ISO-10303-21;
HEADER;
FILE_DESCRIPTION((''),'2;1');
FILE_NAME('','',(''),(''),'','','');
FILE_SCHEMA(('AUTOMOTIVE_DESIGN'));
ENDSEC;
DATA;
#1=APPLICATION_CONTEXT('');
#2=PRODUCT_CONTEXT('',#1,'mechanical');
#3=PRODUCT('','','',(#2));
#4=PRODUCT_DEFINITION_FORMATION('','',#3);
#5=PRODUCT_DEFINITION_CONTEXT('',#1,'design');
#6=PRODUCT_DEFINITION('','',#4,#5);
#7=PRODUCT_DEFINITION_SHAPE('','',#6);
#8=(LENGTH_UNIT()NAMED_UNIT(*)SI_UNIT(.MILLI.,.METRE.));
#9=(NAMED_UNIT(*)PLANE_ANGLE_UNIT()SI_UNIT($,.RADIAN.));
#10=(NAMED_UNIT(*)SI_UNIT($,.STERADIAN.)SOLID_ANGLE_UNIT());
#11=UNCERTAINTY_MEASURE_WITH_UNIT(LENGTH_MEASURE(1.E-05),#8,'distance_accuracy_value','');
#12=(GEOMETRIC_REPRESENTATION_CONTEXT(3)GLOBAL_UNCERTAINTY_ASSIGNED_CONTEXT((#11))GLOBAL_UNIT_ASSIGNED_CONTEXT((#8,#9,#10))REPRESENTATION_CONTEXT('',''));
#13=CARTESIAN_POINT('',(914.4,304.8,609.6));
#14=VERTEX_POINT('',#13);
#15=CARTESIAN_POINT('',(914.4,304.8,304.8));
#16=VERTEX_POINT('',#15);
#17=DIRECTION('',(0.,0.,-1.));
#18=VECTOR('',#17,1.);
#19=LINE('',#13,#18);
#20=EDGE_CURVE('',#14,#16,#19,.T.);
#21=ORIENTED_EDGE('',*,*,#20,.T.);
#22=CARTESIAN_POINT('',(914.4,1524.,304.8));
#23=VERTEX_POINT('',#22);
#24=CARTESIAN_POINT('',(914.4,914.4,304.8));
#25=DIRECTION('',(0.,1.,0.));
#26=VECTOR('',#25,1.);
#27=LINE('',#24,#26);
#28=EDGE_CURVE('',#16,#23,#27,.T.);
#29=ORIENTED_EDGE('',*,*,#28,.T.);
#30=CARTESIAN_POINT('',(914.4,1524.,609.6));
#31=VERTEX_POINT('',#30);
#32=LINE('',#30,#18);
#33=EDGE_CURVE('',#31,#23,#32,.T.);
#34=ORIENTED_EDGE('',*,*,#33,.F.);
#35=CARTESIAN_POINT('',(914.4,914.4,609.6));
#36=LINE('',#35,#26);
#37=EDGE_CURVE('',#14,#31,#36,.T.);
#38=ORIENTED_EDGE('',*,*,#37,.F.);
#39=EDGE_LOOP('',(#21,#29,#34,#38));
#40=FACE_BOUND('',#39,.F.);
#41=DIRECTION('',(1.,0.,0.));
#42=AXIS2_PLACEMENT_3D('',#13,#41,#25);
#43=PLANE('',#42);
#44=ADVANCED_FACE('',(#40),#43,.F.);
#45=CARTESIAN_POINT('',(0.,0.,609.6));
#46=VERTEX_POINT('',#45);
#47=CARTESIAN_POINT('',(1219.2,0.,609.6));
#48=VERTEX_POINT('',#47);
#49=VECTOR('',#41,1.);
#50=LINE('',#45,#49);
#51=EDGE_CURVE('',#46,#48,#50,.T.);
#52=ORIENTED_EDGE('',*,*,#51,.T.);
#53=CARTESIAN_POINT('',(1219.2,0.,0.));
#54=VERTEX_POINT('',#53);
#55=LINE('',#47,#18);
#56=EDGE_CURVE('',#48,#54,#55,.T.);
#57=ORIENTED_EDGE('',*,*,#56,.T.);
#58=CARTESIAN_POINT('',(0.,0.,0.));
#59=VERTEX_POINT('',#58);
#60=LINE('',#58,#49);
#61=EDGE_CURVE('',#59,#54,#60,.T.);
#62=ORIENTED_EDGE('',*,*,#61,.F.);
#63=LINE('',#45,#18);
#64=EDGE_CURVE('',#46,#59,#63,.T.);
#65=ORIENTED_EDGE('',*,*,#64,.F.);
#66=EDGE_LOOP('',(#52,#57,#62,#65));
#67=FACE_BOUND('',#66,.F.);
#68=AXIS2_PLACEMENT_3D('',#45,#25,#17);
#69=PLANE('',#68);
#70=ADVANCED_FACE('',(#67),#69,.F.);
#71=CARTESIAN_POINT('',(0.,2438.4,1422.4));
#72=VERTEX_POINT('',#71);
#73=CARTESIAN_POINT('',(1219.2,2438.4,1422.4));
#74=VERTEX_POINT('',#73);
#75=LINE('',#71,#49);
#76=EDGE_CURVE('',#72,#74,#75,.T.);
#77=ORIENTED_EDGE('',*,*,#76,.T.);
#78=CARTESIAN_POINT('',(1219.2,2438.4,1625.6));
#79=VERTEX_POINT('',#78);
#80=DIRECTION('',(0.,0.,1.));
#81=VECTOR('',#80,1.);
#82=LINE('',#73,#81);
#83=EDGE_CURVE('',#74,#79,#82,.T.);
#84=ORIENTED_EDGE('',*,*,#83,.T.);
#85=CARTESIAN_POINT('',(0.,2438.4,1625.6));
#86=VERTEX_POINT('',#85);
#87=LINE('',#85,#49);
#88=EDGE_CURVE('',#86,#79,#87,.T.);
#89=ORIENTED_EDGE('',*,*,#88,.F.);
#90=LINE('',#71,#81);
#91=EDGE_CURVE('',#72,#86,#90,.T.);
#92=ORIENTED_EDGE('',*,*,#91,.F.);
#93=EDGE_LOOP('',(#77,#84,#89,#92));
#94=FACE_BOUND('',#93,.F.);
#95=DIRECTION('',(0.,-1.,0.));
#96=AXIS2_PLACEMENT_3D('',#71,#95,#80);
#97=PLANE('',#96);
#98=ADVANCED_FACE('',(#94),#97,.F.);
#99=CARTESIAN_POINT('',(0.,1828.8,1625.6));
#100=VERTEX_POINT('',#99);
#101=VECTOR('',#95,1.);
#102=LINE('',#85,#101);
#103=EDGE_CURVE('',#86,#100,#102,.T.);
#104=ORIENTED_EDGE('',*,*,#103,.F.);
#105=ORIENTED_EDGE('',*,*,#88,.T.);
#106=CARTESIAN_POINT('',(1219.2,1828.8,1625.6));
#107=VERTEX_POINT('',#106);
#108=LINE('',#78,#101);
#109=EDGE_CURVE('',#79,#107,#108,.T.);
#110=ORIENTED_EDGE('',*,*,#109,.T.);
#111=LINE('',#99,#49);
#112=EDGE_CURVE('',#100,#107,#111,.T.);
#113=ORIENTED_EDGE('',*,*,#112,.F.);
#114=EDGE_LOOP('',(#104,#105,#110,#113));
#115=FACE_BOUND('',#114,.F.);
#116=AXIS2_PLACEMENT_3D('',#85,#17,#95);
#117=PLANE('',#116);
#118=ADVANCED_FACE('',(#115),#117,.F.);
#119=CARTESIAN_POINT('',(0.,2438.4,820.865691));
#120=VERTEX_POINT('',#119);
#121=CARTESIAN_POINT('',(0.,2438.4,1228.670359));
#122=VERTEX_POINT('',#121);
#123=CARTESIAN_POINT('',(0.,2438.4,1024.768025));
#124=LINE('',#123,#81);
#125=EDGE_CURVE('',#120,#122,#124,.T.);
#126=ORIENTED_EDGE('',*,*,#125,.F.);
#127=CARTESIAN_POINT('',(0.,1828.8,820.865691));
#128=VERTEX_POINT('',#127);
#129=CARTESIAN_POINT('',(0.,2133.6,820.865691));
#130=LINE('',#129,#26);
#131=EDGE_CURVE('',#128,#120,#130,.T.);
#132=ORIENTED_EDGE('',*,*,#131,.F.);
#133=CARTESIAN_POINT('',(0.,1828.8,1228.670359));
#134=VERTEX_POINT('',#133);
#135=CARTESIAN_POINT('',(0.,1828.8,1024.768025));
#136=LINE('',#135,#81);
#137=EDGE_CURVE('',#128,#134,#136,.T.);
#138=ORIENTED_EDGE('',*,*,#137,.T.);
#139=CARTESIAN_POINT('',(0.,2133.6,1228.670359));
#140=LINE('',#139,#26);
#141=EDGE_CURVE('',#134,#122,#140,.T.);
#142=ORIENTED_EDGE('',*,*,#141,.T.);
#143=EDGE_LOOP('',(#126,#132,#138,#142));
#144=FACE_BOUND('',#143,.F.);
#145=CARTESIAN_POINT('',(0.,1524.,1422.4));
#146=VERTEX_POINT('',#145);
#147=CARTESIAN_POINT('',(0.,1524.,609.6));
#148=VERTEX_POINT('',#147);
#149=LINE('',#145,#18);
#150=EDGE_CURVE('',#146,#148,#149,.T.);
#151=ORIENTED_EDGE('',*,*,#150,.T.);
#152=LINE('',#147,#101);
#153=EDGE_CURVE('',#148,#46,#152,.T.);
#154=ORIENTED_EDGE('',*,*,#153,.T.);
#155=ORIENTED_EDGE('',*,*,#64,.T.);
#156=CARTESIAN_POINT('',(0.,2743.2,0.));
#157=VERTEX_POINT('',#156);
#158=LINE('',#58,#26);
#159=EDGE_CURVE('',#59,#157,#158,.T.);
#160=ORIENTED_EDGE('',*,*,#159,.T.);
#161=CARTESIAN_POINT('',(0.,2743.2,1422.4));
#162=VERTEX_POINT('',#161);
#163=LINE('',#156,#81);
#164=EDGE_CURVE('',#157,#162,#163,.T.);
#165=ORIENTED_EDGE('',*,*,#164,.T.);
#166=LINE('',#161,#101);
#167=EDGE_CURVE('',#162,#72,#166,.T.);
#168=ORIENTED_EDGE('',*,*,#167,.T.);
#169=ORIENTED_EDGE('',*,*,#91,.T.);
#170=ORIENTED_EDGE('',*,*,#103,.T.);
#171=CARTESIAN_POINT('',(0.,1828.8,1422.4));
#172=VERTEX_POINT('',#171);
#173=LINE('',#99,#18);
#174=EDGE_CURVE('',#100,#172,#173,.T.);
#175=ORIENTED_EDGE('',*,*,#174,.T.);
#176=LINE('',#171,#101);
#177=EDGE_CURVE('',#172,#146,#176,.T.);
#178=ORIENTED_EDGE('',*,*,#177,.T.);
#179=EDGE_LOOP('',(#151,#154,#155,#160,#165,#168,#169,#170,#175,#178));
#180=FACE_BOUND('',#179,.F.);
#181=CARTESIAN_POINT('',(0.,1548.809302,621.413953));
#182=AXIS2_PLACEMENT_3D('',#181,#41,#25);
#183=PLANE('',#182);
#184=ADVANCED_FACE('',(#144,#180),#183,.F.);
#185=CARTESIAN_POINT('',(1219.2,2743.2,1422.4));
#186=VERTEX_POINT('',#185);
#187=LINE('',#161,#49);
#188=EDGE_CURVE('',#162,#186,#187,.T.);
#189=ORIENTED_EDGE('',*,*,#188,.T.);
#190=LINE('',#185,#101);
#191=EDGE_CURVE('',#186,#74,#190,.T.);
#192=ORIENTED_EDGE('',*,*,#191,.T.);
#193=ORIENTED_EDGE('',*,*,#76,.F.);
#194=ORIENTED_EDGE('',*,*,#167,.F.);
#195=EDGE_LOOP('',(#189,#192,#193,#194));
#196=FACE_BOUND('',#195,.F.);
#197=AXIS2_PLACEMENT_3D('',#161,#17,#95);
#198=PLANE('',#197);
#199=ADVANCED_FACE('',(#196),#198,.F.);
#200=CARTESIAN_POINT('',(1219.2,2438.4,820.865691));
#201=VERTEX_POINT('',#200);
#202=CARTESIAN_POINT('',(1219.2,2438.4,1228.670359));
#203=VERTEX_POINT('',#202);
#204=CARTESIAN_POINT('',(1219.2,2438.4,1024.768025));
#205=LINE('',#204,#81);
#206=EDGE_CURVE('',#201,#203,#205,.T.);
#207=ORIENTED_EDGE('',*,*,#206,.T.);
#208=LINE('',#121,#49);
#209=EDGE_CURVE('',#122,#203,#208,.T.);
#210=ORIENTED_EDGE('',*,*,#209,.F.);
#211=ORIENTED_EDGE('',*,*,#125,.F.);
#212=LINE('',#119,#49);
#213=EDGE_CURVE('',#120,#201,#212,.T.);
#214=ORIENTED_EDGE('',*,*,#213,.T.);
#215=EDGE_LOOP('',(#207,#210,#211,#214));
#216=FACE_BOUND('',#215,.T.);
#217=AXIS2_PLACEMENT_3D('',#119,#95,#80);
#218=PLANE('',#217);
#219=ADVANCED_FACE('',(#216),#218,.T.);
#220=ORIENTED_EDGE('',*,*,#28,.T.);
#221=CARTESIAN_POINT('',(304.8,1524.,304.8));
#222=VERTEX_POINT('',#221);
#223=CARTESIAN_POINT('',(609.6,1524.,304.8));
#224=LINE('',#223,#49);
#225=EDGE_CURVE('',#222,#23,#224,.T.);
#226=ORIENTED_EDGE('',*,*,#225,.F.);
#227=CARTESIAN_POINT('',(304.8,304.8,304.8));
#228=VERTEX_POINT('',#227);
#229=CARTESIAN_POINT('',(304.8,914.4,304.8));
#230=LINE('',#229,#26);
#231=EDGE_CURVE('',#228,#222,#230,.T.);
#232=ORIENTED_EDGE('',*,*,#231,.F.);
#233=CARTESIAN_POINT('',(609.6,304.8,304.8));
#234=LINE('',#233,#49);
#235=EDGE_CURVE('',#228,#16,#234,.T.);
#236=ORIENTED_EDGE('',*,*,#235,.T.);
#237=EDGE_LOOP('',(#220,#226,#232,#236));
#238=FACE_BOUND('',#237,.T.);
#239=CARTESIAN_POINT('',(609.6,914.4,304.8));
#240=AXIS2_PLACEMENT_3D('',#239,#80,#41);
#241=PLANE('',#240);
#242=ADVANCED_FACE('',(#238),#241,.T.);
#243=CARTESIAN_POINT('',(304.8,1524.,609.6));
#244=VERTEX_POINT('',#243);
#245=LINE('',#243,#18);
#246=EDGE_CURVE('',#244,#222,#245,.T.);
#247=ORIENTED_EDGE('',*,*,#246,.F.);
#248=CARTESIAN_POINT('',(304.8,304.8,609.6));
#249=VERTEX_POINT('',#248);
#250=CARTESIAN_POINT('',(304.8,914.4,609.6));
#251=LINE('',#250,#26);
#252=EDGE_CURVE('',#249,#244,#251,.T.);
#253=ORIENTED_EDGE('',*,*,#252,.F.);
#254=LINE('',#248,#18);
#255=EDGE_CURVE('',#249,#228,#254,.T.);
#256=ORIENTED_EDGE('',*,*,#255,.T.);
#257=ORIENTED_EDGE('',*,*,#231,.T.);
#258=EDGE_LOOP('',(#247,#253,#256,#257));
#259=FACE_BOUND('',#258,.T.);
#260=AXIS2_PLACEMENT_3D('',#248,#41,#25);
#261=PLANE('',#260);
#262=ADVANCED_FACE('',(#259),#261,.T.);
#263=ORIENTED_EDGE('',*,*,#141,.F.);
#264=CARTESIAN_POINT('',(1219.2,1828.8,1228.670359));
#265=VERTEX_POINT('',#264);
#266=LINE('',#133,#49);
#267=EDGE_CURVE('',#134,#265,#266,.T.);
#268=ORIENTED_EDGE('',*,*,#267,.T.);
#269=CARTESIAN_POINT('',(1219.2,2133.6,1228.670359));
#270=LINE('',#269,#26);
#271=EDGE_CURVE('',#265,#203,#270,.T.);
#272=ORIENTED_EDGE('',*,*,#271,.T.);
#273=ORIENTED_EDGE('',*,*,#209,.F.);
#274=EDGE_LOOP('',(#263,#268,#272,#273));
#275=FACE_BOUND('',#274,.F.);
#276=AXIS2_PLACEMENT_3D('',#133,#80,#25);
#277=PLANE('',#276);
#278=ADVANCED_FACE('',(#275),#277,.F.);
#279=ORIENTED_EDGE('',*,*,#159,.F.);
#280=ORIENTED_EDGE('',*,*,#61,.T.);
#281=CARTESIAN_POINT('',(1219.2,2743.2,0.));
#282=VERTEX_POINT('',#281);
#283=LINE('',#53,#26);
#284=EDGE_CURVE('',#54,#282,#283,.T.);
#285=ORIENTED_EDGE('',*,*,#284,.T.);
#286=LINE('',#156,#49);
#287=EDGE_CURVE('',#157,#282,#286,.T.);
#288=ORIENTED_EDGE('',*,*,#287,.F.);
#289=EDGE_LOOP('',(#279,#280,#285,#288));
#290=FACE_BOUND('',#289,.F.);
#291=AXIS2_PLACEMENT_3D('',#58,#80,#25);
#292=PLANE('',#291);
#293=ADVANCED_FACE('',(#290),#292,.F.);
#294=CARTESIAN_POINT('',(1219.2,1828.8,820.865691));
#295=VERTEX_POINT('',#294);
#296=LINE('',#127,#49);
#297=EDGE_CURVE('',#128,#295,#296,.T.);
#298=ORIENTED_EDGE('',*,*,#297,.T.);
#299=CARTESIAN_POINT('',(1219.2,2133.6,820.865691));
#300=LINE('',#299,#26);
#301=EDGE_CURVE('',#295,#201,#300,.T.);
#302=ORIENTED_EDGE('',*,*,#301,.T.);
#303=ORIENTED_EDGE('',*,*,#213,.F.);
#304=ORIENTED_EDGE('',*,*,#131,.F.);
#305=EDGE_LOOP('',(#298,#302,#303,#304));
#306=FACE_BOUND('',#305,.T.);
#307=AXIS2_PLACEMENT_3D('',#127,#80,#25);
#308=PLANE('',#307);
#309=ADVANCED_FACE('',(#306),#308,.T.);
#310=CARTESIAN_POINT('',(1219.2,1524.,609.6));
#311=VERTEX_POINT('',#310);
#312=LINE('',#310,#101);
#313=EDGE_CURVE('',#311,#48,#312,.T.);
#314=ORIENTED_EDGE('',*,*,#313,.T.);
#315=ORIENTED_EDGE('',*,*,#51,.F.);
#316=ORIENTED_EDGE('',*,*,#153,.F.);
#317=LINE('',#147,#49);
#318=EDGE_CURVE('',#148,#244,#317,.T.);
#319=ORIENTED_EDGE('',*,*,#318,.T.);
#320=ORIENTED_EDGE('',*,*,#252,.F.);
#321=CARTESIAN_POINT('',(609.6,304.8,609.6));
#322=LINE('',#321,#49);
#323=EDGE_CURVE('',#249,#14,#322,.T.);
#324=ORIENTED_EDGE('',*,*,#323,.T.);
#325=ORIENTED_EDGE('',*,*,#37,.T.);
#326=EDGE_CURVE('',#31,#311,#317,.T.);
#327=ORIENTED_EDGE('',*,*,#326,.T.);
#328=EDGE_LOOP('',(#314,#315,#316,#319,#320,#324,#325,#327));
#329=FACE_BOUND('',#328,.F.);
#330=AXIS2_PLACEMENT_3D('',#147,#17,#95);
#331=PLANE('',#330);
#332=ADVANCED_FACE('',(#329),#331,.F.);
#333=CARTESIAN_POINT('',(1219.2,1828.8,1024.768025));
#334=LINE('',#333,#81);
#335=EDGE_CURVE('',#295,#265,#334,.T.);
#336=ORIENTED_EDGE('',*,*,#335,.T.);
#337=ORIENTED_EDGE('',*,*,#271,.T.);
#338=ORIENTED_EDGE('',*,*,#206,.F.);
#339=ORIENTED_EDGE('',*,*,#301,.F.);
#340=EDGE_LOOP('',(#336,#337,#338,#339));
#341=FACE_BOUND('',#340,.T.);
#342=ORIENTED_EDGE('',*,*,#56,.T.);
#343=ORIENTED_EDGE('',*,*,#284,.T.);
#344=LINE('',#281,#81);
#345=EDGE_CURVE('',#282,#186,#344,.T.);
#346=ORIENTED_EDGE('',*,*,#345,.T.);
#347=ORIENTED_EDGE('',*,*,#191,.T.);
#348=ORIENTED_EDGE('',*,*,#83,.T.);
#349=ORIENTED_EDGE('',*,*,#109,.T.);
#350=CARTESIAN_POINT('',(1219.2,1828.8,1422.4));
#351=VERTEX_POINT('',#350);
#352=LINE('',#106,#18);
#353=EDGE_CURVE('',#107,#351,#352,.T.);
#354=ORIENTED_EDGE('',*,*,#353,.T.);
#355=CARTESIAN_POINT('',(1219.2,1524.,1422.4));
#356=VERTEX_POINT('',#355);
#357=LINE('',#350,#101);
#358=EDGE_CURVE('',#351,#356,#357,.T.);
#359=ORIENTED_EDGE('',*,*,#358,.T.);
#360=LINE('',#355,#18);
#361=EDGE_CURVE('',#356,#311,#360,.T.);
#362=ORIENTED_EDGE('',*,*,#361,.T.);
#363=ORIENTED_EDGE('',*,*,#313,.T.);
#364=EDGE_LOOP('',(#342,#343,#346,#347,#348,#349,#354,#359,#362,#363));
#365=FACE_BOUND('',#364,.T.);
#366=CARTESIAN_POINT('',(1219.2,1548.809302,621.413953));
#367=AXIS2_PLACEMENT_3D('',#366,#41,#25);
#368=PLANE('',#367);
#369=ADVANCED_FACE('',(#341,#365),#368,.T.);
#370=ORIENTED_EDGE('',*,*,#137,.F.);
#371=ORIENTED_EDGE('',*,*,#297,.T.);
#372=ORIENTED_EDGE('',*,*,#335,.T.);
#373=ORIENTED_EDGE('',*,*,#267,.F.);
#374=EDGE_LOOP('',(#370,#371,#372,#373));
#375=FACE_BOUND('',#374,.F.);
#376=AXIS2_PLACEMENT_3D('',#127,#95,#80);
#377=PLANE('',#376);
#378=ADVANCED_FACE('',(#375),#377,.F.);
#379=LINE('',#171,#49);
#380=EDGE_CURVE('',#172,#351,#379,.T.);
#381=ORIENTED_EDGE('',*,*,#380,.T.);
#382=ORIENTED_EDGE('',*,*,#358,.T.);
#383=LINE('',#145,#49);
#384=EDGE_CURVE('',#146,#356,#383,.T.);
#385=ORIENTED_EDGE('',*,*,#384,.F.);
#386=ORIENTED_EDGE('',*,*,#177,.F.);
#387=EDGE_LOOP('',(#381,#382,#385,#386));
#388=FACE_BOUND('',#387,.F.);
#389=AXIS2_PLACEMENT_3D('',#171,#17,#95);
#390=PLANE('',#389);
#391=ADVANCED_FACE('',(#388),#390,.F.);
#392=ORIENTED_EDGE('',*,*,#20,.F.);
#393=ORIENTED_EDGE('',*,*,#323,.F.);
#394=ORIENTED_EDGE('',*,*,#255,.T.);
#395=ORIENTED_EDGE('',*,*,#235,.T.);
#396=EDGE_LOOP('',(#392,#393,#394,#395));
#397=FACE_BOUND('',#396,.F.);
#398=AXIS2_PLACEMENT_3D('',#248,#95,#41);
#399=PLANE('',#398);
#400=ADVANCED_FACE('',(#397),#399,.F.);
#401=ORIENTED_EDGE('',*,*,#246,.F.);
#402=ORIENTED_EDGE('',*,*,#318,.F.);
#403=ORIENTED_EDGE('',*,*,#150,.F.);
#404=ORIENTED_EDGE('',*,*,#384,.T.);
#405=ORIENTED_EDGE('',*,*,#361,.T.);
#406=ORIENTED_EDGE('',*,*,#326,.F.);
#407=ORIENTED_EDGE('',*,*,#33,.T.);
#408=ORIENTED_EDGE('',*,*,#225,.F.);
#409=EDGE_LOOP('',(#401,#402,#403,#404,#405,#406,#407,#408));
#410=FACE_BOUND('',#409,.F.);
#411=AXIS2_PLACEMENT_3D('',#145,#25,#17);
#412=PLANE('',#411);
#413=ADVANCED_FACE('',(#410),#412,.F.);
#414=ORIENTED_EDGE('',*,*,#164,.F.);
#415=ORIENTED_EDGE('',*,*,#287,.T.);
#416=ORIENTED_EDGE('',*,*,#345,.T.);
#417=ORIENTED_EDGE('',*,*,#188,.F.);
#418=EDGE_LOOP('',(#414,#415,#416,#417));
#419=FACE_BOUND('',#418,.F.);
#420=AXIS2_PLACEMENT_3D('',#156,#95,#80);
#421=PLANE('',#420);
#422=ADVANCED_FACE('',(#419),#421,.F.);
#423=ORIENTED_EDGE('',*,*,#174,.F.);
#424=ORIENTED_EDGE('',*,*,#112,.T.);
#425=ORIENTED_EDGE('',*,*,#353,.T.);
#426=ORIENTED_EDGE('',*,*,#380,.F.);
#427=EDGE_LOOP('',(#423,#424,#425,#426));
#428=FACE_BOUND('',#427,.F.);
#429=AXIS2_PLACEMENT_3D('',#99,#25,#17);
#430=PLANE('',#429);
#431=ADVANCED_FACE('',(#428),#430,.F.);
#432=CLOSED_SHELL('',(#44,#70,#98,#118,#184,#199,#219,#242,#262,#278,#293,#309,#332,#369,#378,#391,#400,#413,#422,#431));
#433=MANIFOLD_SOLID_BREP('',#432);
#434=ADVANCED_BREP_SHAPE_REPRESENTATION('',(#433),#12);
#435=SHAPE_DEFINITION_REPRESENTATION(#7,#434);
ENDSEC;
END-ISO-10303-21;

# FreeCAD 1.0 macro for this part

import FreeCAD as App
import Part
import Sketcher
from FreeCAD import Vector
Q = App.Units.Quantity

doc = App.newDocument("Part")
body = doc.addObject("PartDesign::Body", "Body")

# Sketch on YZ plane
sketch1 = body.newObject("Sketcher::SketchObject", "Sketch")
sketch1.AttachmentSupport = (doc.getObject("YZ_Plane"), [""])
sketch1.MapMode = "FlatFace"
sketch1.addGeometry([
    Part.LineSegment(Vector(0, 609.6, 0), Vector(0, 0, 0)),  # 0
    Part.LineSegment(Vector(0, 0, 0), Vector(2743.2, 0, 0)),  # 1
    Part.LineSegment(Vector(2743.2, 0, 0), Vector(2743.2, 1422.4, 0)),  # 2
    Part.LineSegment(Vector(2743.2, 1422.4, 0), Vector(2438.4, 1422.4, 0)),  # 3
    Part.LineSegment(Vector(2438.4, 1422.4, 0), Vector(2438.4, 1625.6, 0)),  # 4
    Part.LineSegment(Vector(2438.4, 1625.6, 0), Vector(1828.8, 1625.6, 0)),  # 5
    Part.LineSegment(Vector(1828.8, 1625.6, 0), Vector(1828.8, 1422.4, 0)),  # 6
    Part.LineSegment(Vector(1828.8, 1422.4, 0), Vector(1524, 1422.4, 0)),  # 7
    Part.LineSegment(Vector(1524, 1422.4, 0), Vector(1524, 609.6, 0)),  # 8
    Part.LineSegment(Vector(1524, 609.6, 0), Vector(0, 609.6, 0)),  # 9
    Part.LineSegment(Vector(2438.4, 820.865691, 0), Vector(1828.8, 820.865691, 0)),  # 10
    Part.LineSegment(Vector(1828.8, 820.865691, 0), Vector(1828.8, 1228.670359, 0)),  # 11
    Part.LineSegment(Vector(1828.8, 1228.670359, 0), Vector(2438.4, 1228.670359, 0)),  # 12
    Part.LineSegment(Vector(2438.4, 1228.670359, 0), Vector(2438.4, 820.865691, 0)),  # 13
], False)
sketch1.addConstraint([
    Sketcher.Constraint("Coincident", 0, 2, 1, 1),
    Sketcher.Constraint("Coincident", 1, 2, 2, 1),
    Sketcher.Constraint("Coincident", 2, 2, 3, 1),
    Sketcher.Constraint("Coincident", 3, 2, 4, 1),
    Sketcher.Constraint("Coincident", 4, 2, 5, 1),
    Sketcher.Constraint("Coincident", 5, 2, 6, 1),
    Sketcher.Constraint("Coincident", 6, 2, 7, 1),
    Sketcher.Constraint("Coincident", 7, 2, 8, 1),
    Sketcher.Constraint("Coincident", 8, 2, 9, 1),
    Sketcher.Constraint("Coincident", 9, 2, 0, 1),
    Sketcher.Constraint("Coincident", 10, 2, 11, 1),
    Sketcher.Constraint("Coincident", 11, 2, 12, 1),
    Sketcher.Constraint("Coincident", 12, 2, 13, 1),
    Sketcher.Constraint("Coincident", 13, 2, 10, 1),
    Sketcher.Constraint("Vertical", 0),
    Sketcher.Constraint("Horizontal", 1),
    Sketcher.Constraint("Vertical", 2),
    Sketcher.Constraint("Horizontal", 3),
    Sketcher.Constraint("Vertical", 4),
    Sketcher.Constraint("Horizontal", 5),
    Sketcher.Constraint("Vertical", 6),
    Sketcher.Constraint("Horizontal", 7),
    Sketcher.Constraint("Vertical", 8),
    Sketcher.Constraint("Horizontal", 9),
    Sketcher.Constraint("Horizontal", 10),
    Sketcher.Constraint("Vertical", 11),
    Sketcher.Constraint("Horizontal", 12),
    Sketcher.Constraint("Vertical", 13),
    Sketcher.Constraint("Coincident", 0, 2, -1, 1),
    Sketcher.Constraint("Horizontal", 3, 2, 6, 2),
    Sketcher.Constraint("Vertical", 6, 2, 10, 2),
    Sketcher.Constraint("Vertical", 4, 2, 12, 2),
    Sketcher.Constraint("Equal", 3, 7),
    Sketcher.Constraint("Equal", 12, 0),
    Sketcher.Constraint("DistanceX", 1, 1, 1, 2, Q("108 in")),
    Sketcher.Constraint("DistanceX", 3, 2, 3, 1, Q("12 in")),
    Sketcher.Constraint("DistanceX", 5, 2, 5, 1, Q("24 in")),
    Sketcher.Constraint("DistanceY", 2, 1, 2, 2, Q("56 in")),
    Sketcher.Constraint("DistanceY", 4, 1, 4, 2, Q("8 in")),
    Sketcher.Constraint("DistanceY", 11, 1, 11, 2, 407.804668),
    Sketcher.Constraint("DistanceY", -1, 1, 10, 2, 820.865691),
])
pad1 = body.newObject("PartDesign::Pad", "Pad")
pad1.Profile = sketch1
pad1.Length = Q("48 in")

# Sketch on XY plane
sketch2 = body.newObject("Sketcher::SketchObject", "Sketch001")
sketch2.AttachmentSupport = (doc.getObject("XY_Plane"), [""])
sketch2.MapMode = "FlatFace"
sketch2.AttachmentOffset = App.Placement(Vector(0, 0, 24 * 25.4), App.Rotation())
sketch2.addGeometry([
    Part.LineSegment(Vector(304.8, 1524, 0), Vector(304.8, 304.8, 0)),
    Part.LineSegment(Vector(304.8, 304.8, 0), Vector(914.4, 304.8, 0)),
    Part.LineSegment(Vector(914.4, 304.8, 0), Vector(914.4, 1524, 0)),
    Part.LineSegment(Vector(914.4, 1524, 0), Vector(304.8, 1524, 0)),
], False)
sketch2.addConstraint([
    Sketcher.Constraint("Coincident", 0, 2, 1, 1),
    Sketcher.Constraint("Coincident", 1, 2, 2, 1),
    Sketcher.Constraint("Coincident", 2, 2, 3, 1),
    Sketcher.Constraint("Coincident", 3, 2, 0, 1),
    Sketcher.Constraint("Vertical", 0),
    Sketcher.Constraint("Horizontal", 1),
    Sketcher.Constraint("Vertical", 2),
    Sketcher.Constraint("Horizontal", 3),
    Sketcher.Constraint("DistanceX", 1, 1, 1, 2, Q("24 in")),
    Sketcher.Constraint("DistanceY", 0, 2, 0, 1, Q("48 in")),
    Sketcher.Constraint("DistanceX", -1, 1, 0, 2, Q("12 in")),
    Sketcher.Constraint("DistanceY", -1, 1, 0, 2, Q("12 in")),
])
pocket1 = body.newObject("PartDesign::Pocket", "Pocket")
pocket1.Profile = sketch2
pocket1.Length = Q("12 in")

doc.recompute()
